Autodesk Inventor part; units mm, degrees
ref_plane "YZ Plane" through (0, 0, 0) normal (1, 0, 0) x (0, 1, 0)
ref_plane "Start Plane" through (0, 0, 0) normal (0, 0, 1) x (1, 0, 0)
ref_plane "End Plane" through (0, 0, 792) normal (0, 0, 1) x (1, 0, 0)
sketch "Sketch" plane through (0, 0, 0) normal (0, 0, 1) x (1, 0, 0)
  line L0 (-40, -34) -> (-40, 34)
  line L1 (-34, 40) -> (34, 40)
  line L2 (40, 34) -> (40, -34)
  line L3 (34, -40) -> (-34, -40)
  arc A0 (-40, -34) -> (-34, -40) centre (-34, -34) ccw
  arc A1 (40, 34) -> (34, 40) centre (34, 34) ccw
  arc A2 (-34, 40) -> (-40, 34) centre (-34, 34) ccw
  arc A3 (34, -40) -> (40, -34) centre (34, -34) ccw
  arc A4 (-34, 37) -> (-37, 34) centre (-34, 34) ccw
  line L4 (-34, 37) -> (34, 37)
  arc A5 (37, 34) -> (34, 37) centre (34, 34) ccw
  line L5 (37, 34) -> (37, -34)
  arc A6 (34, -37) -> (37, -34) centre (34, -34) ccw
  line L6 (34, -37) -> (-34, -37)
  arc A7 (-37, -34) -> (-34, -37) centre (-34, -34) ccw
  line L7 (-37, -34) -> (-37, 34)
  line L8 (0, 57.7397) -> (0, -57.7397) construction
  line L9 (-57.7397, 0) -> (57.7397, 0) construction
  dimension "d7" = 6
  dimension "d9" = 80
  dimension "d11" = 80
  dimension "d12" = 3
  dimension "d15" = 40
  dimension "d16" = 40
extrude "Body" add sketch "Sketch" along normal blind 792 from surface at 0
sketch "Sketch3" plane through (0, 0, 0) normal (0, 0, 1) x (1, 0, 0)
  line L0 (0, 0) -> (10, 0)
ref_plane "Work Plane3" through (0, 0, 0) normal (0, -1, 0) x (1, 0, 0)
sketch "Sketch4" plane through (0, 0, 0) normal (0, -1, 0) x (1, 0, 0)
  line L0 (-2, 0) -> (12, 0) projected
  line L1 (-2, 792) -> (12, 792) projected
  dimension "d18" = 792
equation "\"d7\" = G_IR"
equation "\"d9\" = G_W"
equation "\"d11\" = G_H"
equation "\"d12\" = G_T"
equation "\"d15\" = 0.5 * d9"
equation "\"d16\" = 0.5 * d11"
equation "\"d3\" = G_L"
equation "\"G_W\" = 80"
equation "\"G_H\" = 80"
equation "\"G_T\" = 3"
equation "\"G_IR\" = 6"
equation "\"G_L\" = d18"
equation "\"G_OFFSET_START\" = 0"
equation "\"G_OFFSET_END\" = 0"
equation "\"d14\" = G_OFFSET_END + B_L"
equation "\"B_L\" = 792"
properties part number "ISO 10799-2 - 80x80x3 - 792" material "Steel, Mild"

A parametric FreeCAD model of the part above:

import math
import FreeCAD as App
import Part
import Sketcher

V = App.Vector
Q = App.Units.Quantity

doc = App.newDocument("Part")
body = doc.addObject("PartDesign::Body", "Body")

# Sketch on XY plane
sketch1 = doc.addObject("Sketcher::SketchObject", "Sketch")
body.addObject(sketch1)
sketch1.AttachmentSupport = (doc.XY_Plane, [""])
sketch1.MapMode = "FlatFace"
sketch1.addGeometry([
    Part.LineSegment(V(-40, 34, 0), V(-40, -34, 0)),  # 0
    Part.ArcOfCircle(Part.Circle(V(-34, -34, 0), V(0, 0, 1), 6), math.radians(180), math.radians(270)),  # 1
    Part.LineSegment(V(-34, -40, 0), V(34, -40, 0)),  # 2
    Part.ArcOfCircle(Part.Circle(V(34, -34, 0), V(0, 0, 1), 6), math.radians(-90), math.radians(0)),  # 3
    Part.LineSegment(V(40, -34, 0), V(40, 34, 0)),  # 4
    Part.ArcOfCircle(Part.Circle(V(34, 34, 0), V(0, 0, 1), 6), math.radians(0), math.radians(90)),  # 5
    Part.LineSegment(V(34, 40, 0), V(-34, 40, 0)),  # 6
    Part.ArcOfCircle(Part.Circle(V(-34, 34, 0), V(0, 0, 1), 6), math.radians(90), math.radians(180)),  # 7
    Part.ArcOfCircle(Part.Circle(V(-34, 34, 0), V(0, 0, 1), 3), math.radians(90), math.radians(180)),  # 8
    Part.LineSegment(V(-34, 37, 0), V(34, 37, 0)),  # 9
    Part.ArcOfCircle(Part.Circle(V(34, 34, 0), V(0, 0, 1), 3), math.radians(0), math.radians(90)),  # 10
    Part.LineSegment(V(37, 34, 0), V(37, -34, 0)),  # 11
    Part.ArcOfCircle(Part.Circle(V(34, -34, 0), V(0, 0, 1), 3), math.radians(-90), math.radians(0)),  # 12
    Part.LineSegment(V(34, -37, 0), V(-34, -37, 0)),  # 13
    Part.ArcOfCircle(Part.Circle(V(-34, -34, 0), V(0, 0, 1), 3), math.radians(180), math.radians(270)),  # 14
    Part.LineSegment(V(-37, -34, 0), V(-37, 34, 0)),  # 15
], False)
sketch1.addConstraint([
    Sketcher.Constraint("Tangent", 0, 2, 1, 1),
    Sketcher.Constraint("Tangent", 1, 2, 2, 1),
    Sketcher.Constraint("Tangent", 2, 2, 3, 1),
    Sketcher.Constraint("Tangent", 3, 2, 4, 1),
    Sketcher.Constraint("Tangent", 4, 2, 5, 1),
    Sketcher.Constraint("Tangent", 5, 2, 6, 1),
    Sketcher.Constraint("Tangent", 6, 2, 7, 1),
    Sketcher.Constraint("Tangent", 7, 2, 0, 1),
    Sketcher.Constraint("Tangent", 8, 1, 9, 1),
    Sketcher.Constraint("Tangent", 9, 2, 10, 2),
    Sketcher.Constraint("Tangent", 10, 1, 11, 1),
    Sketcher.Constraint("Tangent", 11, 2, 12, 2),
    Sketcher.Constraint("Tangent", 12, 1, 13, 1),
    Sketcher.Constraint("Tangent", 13, 2, 14, 2),
    Sketcher.Constraint("Tangent", 14, 1, 15, 1),
    Sketcher.Constraint("Tangent", 15, 2, 8, 2),
    Sketcher.Constraint("Vertical", 0),
    Sketcher.Constraint("Horizontal", 2),
    Sketcher.Constraint("Vertical", 4),
    Sketcher.Constraint("Horizontal", 6),
    Sketcher.Constraint("Horizontal", 9),
    Sketcher.Constraint("Vertical", 11),
    Sketcher.Constraint("Horizontal", 13),
    Sketcher.Constraint("Vertical", 15),
    Sketcher.Constraint("Coincident", 8, 3, 7, 3),
    Sketcher.Constraint("Coincident", 10, 3, 5, 3),
    Sketcher.Constraint("Coincident", 12, 3, 3, 3),
    Sketcher.Constraint("Equal", 1, 3),
    Sketcher.Constraint("Equal", 3, 5),
    Sketcher.Constraint("Equal", 5, 7),
    Sketcher.Constraint("Equal", 12, 14),
    Sketcher.Constraint("Symmetric", 1, 3, 5, 3, -1, 1),
    Sketcher.Constraint("Equal", 13, 0),
    Sketcher.Constraint("Radius", 1, Q("6 mm")),
    Sketcher.Constraint("Radius", 8, Q("3 mm")),
    Sketcher.Constraint("DistanceX", 0, 2, -1, 1, Q("40 mm")),
])
pad1 = doc.addObject("PartDesign::Pad", "Pad")
body.addObject(pad1)
pad1.Profile = sketch1
pad1.Length = 792

doc.recompute()
